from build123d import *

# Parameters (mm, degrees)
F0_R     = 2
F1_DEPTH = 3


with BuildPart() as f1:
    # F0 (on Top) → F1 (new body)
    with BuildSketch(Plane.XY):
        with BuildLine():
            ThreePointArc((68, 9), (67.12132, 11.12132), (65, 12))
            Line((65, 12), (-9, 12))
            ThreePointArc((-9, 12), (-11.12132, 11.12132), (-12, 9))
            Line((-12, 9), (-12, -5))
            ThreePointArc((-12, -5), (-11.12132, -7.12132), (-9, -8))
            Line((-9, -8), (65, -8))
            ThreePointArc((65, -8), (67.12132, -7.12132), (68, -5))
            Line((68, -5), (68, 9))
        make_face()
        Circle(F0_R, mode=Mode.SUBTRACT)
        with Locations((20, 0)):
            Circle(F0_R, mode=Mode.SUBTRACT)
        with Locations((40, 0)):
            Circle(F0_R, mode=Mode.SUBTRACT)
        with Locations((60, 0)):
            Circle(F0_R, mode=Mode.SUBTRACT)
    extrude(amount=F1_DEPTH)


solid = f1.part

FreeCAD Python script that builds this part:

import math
import FreeCAD as App
import Part
import Sketcher

V = App.Vector

doc = App.newDocument("Part")
body = doc.addObject("PartDesign::Body", "Body")

# Sketch on XY plane
sketch1 = body.newObject("Sketcher::SketchObject", "Sketch")
sketch1.AttachmentSupport = (doc.getObject("XY_Plane"), [""])
sketch1.MapMode = "FlatFace"
sketch1.addGeometry(Part.ArcOfCircle(Part.Circle(V(64.999999, 8.999999, 0), V(0, 0, 1), 3.000001), math.radians(0.000022), math.radians(89.999978)), False)
sketch1.addGeometry(Part.LineSegment(V(65, 12, 0), V(-9, 12, 0)), False)
sketch1.addGeometry(Part.ArcOfCircle(Part.Circle(V(-8.999999, 8.999999, 0), V(0, 0, 1), 3.000001), math.radians(90.000022), math.radians(179.999978)), False)
sketch1.addGeometry(Part.LineSegment(V(-12, 9, 0), V(-12, -5, 0)), False)
sketch1.addGeometry(Part.ArcOfCircle(Part.Circle(V(-8.999999, -4.999999, 0), V(0, 0, 1), 3.000001), math.radians(-179.999978), math.radians(-90.000022)), False)
sketch1.addGeometry(Part.LineSegment(V(-9, -8, 0), V(65, -8, 0)), False)
sketch1.addGeometry(Part.ArcOfCircle(Part.Circle(V(64.999999, -4.999999, 0), V(0, 0, 1), 3.000001), math.radians(-89.999978), math.radians(-0.000022)), False)
sketch1.addGeometry(Part.LineSegment(V(68, -5, 0), V(68, 9, 0)), False)
sketch1.addGeometry(Part.Circle(V(0, 0, 0), V(0, 0, 1), 2), False)
sketch1.addGeometry(Part.Circle(V(20, 0, 0), V(0, 0, 1), 2), False)
sketch1.addGeometry(Part.Circle(V(40, 0, 0), V(0, 0, 1), 2), False)
sketch1.addGeometry(Part.Circle(V(60, 0, 0), V(0, 0, 1), 2), False)
sketch1.addConstraint(Sketcher.Constraint("Tangent", 0, 2, 1, 1))
sketch1.addConstraint(Sketcher.Constraint("Tangent", 1, 2, 2, 1))
sketch1.addConstraint(Sketcher.Constraint("Tangent", 2, 2, 3, 1))
sketch1.addConstraint(Sketcher.Constraint("Tangent", 3, 2, 4, 1))
sketch1.addConstraint(Sketcher.Constraint("Tangent", 4, 2, 5, 1))
sketch1.addConstraint(Sketcher.Constraint("Tangent", 5, 2, 6, 1))
sketch1.addConstraint(Sketcher.Constraint("Tangent", 6, 2, 7, 1))
sketch1.addConstraint(Sketcher.Constraint("Tangent", 7, 2, 0, 1))
sketch1.addConstraint(Sketcher.Constraint("Horizontal", 1))
sketch1.addConstraint(Sketcher.Constraint("Vertical", 3))
sketch1.addConstraint(Sketcher.Constraint("Horizontal", 5))
sketch1.addConstraint(Sketcher.Constraint("Vertical", 7))
sketch1.addConstraint(Sketcher.Constraint("Coincident", 8, 3, -1, 1))
sketch1.addConstraint(Sketcher.Constraint("Equal", 0, 2))
sketch1.addConstraint(Sketcher.Constraint("Equal", 2, 4))
sketch1.addConstraint(Sketcher.Constraint("Equal", 4, 6))
sketch1.addConstraint(Sketcher.Constraint("Equal", 8, 9))
sketch1.addConstraint(Sketcher.Constraint("Equal", 9, 10))
sketch1.addConstraint(Sketcher.Constraint("Equal", 10, 11))
sketch1.addConstraint(Sketcher.Constraint("PointOnObject", 9, 3, -1))
sketch1.addConstraint(Sketcher.Constraint("PointOnObject", 10, 3, -1))
sketch1.addConstraint(Sketcher.Constraint("PointOnObject", 11, 3, -1))
sketch1.addConstraint(Sketcher.Constraint("Diameter", 8, 4.0))
sketch1.addConstraint(Sketcher.Constraint("Radius", 0, 3.000001))
sketch1.addConstraint(Sketcher.Constraint("DistanceX", 1, 2, 1, 1, 74.0))
sketch1.addConstraint(Sketcher.Constraint("DistanceY", 3, 2, 3, 1, 14.0))
sketch1.addConstraint(Sketcher.Constraint("DistanceX", -1, 1, 0, 3, 64.999999))
sketch1.addConstraint(Sketcher.Constraint("DistanceY", -1, 1, 0, 3, 8.999999))
sketch1.addConstraint(Sketcher.Constraint("DistanceX", -1, 1, 9, 3, 20.0))
sketch1.addConstraint(Sketcher.Constraint("DistanceX", -1, 1, 10, 3, 40.0))
sketch1.addConstraint(Sketcher.Constraint("DistanceX", -1, 1, 11, 3, 60.0))
pad1 = body.newObject("PartDesign::Pad", "Pad")
pad1.Profile = sketch1
pad1.Length = 3

doc.recompute()
